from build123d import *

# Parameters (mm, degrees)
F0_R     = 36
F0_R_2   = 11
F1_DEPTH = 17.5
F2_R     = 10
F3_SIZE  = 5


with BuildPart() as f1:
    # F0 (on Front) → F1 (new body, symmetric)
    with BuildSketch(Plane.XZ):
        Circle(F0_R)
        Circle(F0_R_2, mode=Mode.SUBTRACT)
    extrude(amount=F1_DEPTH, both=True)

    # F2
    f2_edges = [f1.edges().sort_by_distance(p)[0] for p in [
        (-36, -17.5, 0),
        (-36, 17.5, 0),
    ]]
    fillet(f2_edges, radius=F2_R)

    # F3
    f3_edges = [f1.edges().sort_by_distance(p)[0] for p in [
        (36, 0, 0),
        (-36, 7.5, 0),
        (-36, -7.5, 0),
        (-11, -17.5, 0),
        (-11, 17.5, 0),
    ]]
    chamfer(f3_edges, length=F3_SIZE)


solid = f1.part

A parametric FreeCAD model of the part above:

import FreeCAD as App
import Part
import Sketcher

V = App.Vector
Q = App.Units.Quantity


def edges_at(feature, points):
    """Names of the edges that pass closest to the given points."""
    edges = feature.Shape.Edges
    near = lambda p: min(range(len(edges)), key=lambda i: edges[i].distToShape(Part.Vertex(*p))[0])
    return sorted({f"Edge{near(p) + 1}" for p in points})

doc = App.newDocument("Part")
body = doc.addObject("PartDesign::Body", "Body")

# Sketch on XZ plane
sketch1 = body.newObject("Sketcher::SketchObject", "Sketch")
sketch1.AttachmentSupport = (doc.getObject("XZ_Plane"), [""])
sketch1.MapMode = "FlatFace"
sketch1.addGeometry([
    Part.Circle(V(0, 0, 0), V(0, 0, 1), 36),
    Part.Circle(V(0, 0, 0), V(0, 0, 1), 11),
], False)
sketch1.addConstraint([
    Sketcher.Constraint("Coincident", 0, 3, -1, 1),
    Sketcher.Constraint("Coincident", 1, 3, -1, 1),
    Sketcher.Constraint("Diameter", 0, Q("72 mm")),
    Sketcher.Constraint("Diameter", 1, Q("22 mm")),
])
pad1 = body.newObject("PartDesign::Pad", "Pad")
pad1.Profile = sketch1
pad1.Length = 35
pad1.Midplane = True
doc.recompute()

fillet = body.newObject("PartDesign::Fillet", "Fillet")
fillet.Base = (pad1, edges_at(pad1, [(-36, -17.5, 0), (-36, 17.5, 0)]))
fillet.Radius = 10
doc.recompute()

chamfer = body.newObject("PartDesign::Chamfer", "Chamfer")
chamfer.Base = (fillet, edges_at(fillet, [
    (36, 0, 0),
    (-36, 7.5, 0),
    (-36, -7.5, 0),
    (-11, -17.5, 0),
    (-11, 17.5, 0),
]))
chamfer.Size = 5

doc.recompute()
